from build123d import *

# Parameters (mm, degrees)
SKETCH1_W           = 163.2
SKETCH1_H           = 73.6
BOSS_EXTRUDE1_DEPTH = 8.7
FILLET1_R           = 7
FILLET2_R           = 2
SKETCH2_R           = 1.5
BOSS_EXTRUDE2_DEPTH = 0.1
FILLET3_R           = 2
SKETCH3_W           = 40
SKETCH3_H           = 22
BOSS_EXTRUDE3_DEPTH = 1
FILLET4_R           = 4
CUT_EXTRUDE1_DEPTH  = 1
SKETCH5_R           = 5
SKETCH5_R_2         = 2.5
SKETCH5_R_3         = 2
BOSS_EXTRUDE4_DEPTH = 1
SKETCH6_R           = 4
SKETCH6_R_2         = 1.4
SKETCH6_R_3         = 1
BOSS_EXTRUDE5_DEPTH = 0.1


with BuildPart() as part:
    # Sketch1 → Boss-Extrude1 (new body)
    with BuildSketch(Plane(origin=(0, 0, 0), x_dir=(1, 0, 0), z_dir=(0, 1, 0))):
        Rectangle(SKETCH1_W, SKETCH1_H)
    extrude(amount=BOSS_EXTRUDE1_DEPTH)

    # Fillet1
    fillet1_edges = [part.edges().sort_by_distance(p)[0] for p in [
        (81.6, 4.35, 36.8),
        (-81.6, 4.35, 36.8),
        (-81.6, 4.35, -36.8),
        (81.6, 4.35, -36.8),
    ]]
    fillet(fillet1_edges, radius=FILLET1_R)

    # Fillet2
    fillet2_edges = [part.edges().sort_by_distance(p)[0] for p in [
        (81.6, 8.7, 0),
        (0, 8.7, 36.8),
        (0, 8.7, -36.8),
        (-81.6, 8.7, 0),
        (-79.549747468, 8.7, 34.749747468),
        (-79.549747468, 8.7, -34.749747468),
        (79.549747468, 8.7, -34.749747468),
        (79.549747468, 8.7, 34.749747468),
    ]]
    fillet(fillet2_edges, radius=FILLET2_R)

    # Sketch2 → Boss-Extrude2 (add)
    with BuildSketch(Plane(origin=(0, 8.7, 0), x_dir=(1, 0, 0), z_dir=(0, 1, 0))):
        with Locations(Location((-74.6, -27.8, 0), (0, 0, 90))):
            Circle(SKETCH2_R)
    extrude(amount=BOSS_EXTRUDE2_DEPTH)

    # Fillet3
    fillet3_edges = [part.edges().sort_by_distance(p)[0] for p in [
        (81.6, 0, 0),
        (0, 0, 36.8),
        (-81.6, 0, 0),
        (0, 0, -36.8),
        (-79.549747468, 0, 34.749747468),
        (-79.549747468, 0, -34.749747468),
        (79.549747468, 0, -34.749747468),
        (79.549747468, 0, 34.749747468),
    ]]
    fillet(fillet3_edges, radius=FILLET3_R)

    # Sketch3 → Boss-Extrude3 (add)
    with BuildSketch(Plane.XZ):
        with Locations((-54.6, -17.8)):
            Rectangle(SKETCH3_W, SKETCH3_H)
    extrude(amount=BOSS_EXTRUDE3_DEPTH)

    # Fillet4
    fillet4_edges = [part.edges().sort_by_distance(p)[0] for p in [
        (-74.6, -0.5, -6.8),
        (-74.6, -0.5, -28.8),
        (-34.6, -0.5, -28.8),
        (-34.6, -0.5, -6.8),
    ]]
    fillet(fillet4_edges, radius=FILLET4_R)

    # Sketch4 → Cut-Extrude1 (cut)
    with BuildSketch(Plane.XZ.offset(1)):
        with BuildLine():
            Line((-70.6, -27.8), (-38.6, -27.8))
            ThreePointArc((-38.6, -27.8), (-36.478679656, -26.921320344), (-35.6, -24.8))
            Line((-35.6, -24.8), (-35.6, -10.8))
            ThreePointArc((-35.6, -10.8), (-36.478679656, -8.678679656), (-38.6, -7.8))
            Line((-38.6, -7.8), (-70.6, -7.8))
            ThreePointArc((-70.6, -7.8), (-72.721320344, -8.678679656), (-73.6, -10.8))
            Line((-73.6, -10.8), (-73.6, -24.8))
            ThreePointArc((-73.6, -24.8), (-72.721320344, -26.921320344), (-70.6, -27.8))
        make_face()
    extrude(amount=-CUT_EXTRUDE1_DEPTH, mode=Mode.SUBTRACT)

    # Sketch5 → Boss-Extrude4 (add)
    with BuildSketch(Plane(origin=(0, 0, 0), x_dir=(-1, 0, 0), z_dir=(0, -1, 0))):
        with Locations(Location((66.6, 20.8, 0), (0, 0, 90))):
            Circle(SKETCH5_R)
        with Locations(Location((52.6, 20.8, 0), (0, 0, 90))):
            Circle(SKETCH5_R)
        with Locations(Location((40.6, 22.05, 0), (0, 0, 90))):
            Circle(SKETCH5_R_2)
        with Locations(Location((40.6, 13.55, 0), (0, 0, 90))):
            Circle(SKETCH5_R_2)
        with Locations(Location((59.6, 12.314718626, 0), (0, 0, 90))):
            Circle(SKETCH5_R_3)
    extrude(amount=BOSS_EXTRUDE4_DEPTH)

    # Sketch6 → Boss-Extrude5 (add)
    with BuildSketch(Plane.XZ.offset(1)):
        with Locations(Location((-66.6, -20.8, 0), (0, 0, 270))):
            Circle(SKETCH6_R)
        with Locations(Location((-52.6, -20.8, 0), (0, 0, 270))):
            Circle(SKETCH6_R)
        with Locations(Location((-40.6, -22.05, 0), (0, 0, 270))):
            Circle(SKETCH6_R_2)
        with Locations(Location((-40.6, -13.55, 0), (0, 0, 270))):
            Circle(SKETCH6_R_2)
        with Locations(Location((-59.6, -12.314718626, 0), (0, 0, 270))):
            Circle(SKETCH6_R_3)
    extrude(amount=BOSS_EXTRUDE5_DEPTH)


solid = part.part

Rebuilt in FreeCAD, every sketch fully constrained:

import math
import FreeCAD as App
import Part
import Sketcher

V = App.Vector


def edges_at(feature, points):
    """Names of the edges that pass closest to the given points."""
    edges = feature.Shape.Edges
    near = lambda p: min(range(len(edges)), key=lambda i: edges[i].distToShape(Part.Vertex(*p))[0])
    return sorted({f"Edge{near(p) + 1}" for p in points})


def add_polygon(sketch, points):
    """Adds a closed chain of lines whose ends are joined by coincident constraints."""
    first, n = sketch.GeometryCount, len(points)
    for a, b in zip(points, points[1:] + points[:1]):
        sketch.addGeometry(Part.LineSegment(App.Vector(*a, 0), App.Vector(*b, 0)), False)
    for i in range(n):
        sketch.addConstraint(Sketcher.Constraint("Coincident", first + i, 2, first + (i + 1) % n, 1))

doc = App.newDocument("Part")
params = doc.addObject("Spreadsheet::Sheet", "Params")
for row, (alias, value) in enumerate([
    ("sketch1_width", "163.2 mm"),
    ("sketch1_height", "73.6 mm"),
    ("pad1_length", "8.7 mm"),
    ("fillet_radius", "7 mm"),
    ("fillet2_radius", "2 mm"),
    ("sketch2_diameter", "3 mm"),
    ("pad2_length", "0.1 mm"),
    ("fillet3_radius", "2 mm"),
    ("sketch3_width", "40 mm"),
    ("sketch3_height", "22 mm"),
    ("pad3_length", "1 mm"),
    ("fillet4_radius", "4 mm"),
    ("sketch4_radius", "3 mm"),
    ("sketch4_width", "32 mm"),
    ("sketch4_height", "14 mm"),
    ("pocket1_length", "1 mm"),
    ("sketch5_diameter", "10 mm"),
    ("sketch5_diameter2", "5 mm"),
    ("sketch5_diameter3", "4 mm"),
    ("pad4_length", "1 mm"),
    ("sketch6_diameter", "8 mm"),
    ("sketch6_diameter2", "2 mm"),
    ("sketch6_diameter3", "2.8 mm"),
    ("pad5_length", "0.1 mm"),
], start=1):
    params.set(f"A{row}", alias)
    params.set(f"B{row}", "=" + value)
    params.setAlias(f"B{row}", alias)

body = doc.addObject("PartDesign::Body", "Body")

# Sketch on XZ plane
sketch1 = doc.addObject("Sketcher::SketchObject", "Sketch")
body.addObject(sketch1)
sketch1.AttachmentSupport = (doc.XZ_Plane, [""])
sketch1.MapMode = "FlatFace"
add_polygon(sketch1, [(-81.6, -36.8), (-81.6, 36.8), (81.6, 36.8), (81.6, -36.8)])  # lines 0-3
sketch1.addConstraint(Sketcher.Constraint("Vertical", 0))
sketch1.addConstraint(Sketcher.Constraint("Horizontal", 1))
sketch1.addConstraint(Sketcher.Constraint("Vertical", 2))
sketch1.addConstraint(Sketcher.Constraint("Horizontal", 3))
sketch1.addConstraint(Sketcher.Constraint("Symmetric", 0, 2, 2, 2, -1, 1))
sketch1.addConstraint(Sketcher.Constraint("DistanceX", 1, 1, 1, 2, 163.2))
sketch1.addConstraint(Sketcher.Constraint("DistanceY", 0, 1, 0, 2, 73.6))
sketch1.setExpression("Constraints[9]", "Params.sketch1_width")
sketch1.setExpression("Constraints[10]", "Params.sketch1_height")
pad1 = doc.addObject("PartDesign::Pad", "Pad")
body.addObject(pad1)
pad1.Profile = sketch1
pad1.setExpression("Length", "Params.pad1_length")
pad1.Reversed = True
doc.recompute()

fillet = doc.addObject("PartDesign::Fillet", "Fillet")
body.addObject(fillet)
fillet.Base = (pad1, edges_at(pad1, [
    (81.6, 4.35, 36.8),
    (-81.6, 4.35, 36.8),
    (-81.6, 4.35, -36.8),
    (81.6, 4.35, -36.8),
]))
fillet.setExpression("Radius", "Params.fillet_radius")
doc.recompute()

fillet2 = doc.addObject("PartDesign::Fillet", "Fillet001")
body.addObject(fillet2)
fillet2.Base = (fillet, edges_at(fillet, [
    (81.6, 8.7, 0),
    (0, 8.7, 36.8),
    (0, 8.7, -36.8),
    (-81.6, 8.7, 0),
    (-79.55, 8.7, 34.75),
    (-79.55, 8.7, -34.75),
    (79.55, 8.7, -34.75),
    (79.55, 8.7, 34.75),
]))
fillet2.setExpression("Radius", "Params.fillet2_radius")

# Sketch on XZ plane
sketch2 = doc.addObject("Sketcher::SketchObject", "Sketch001")
body.addObject(sketch2)
sketch2.AttachmentSupport = (doc.XZ_Plane, [""])
sketch2.MapMode = "FlatFace"
sketch2.AttachmentOffset = App.Placement(V(0, 0, -8.7), App.Rotation())
sketch2.addGeometry(Part.Circle(V(-74.6, 27.8, 0), V(0, 0, 1), 1.5), False)
sketch2.addConstraint(Sketcher.Constraint("Diameter", 0, 3.0))
sketch2.addConstraint(Sketcher.Constraint("DistanceX", 0, 3, -1, 1, 74.6))
sketch2.addConstraint(Sketcher.Constraint("DistanceY", -1, 1, 0, 3, 27.8))
sketch2.setExpression("Constraints[0]", "Params.sketch2_diameter")
pad2 = doc.addObject("PartDesign::Pad", "Pad001")
body.addObject(pad2)
pad2.Profile = sketch2
pad2.setExpression("Length", "Params.pad2_length")
pad2.Reversed = True
doc.recompute()

fillet3 = doc.addObject("PartDesign::Fillet", "Fillet002")
body.addObject(fillet3)
fillet3.Base = (pad2, edges_at(pad2, [
    (81.6, 0, 0),
    (0, 0, 36.8),
    (-81.6, 0, 0),
    (0, 0, -36.8),
    (-79.55, 0, 34.75),
    (-79.55, 0, -34.75),
    (79.55, 0, -34.75),
    (79.55, 0, 34.75),
]))
fillet3.setExpression("Radius", "Params.fillet3_radius")

# Sketch on XZ plane
sketch3 = doc.addObject("Sketcher::SketchObject", "Sketch002")
body.addObject(sketch3)
sketch3.AttachmentSupport = (doc.XZ_Plane, [""])
sketch3.MapMode = "FlatFace"
add_polygon(sketch3, [(-74.6, -6.8), (-74.6, -28.8), (-34.6, -28.8), (-34.6, -6.8)])  # lines 0-3
sketch3.addConstraint(Sketcher.Constraint("Vertical", 0))
sketch3.addConstraint(Sketcher.Constraint("Horizontal", 1))
sketch3.addConstraint(Sketcher.Constraint("Vertical", 2))
sketch3.addConstraint(Sketcher.Constraint("Horizontal", 3))
sketch3.addConstraint(Sketcher.Constraint("DistanceX", 1, 1, 1, 2, 40.0))
sketch3.addConstraint(Sketcher.Constraint("DistanceY", 0, 2, 0, 1, 22.0))
sketch3.addConstraint(Sketcher.Constraint("DistanceX", 0, 2, -1, 1, 74.6))
sketch3.addConstraint(Sketcher.Constraint("DistanceY", 0, 2, -1, 1, 28.8))
sketch3.setExpression("Constraints[8]", "Params.sketch3_width")
sketch3.setExpression("Constraints[9]", "Params.sketch3_height")
pad3 = doc.addObject("PartDesign::Pad", "Pad002")
body.addObject(pad3)
pad3.Profile = sketch3
pad3.setExpression("Length", "Params.pad3_length")
doc.recompute()

fillet4 = doc.addObject("PartDesign::Fillet", "Fillet003")
body.addObject(fillet4)
fillet4.Base = (pad3, edges_at(pad3, [
    (-74.6, -0.5, -6.8),
    (-74.6, -0.5, -28.8),
    (-34.6, -0.5, -28.8),
    (-34.6, -0.5, -6.8),
]))
fillet4.setExpression("Radius", "Params.fillet4_radius")

# Sketch on XZ plane
sketch4 = doc.addObject("Sketcher::SketchObject", "Sketch003")
body.addObject(sketch4)
sketch4.AttachmentSupport = (doc.XZ_Plane, [""])
sketch4.MapMode = "FlatFace"
sketch4.AttachmentOffset = App.Placement(V(0, 0, 1), App.Rotation())
sketch4.addGeometry(Part.LineSegment(V(-70.6, -27.8, 0), V(-38.6, -27.8, 0)), False)
sketch4.addGeometry(Part.ArcOfCircle(Part.Circle(V(-38.6, -24.8, 0), V(0, 0, 1), 3), math.radians(-90), math.radians(0)), False)
sketch4.addGeometry(Part.LineSegment(V(-35.6, -24.8, 0), V(-35.6, -10.8, 0)), False)
sketch4.addGeometry(Part.ArcOfCircle(Part.Circle(V(-38.6, -10.8, 0), V(0, 0, 1), 3), math.radians(0), math.radians(90)), False)
sketch4.addGeometry(Part.LineSegment(V(-38.6, -7.8, 0), V(-70.6, -7.8, 0)), False)
sketch4.addGeometry(Part.ArcOfCircle(Part.Circle(V(-70.6, -10.8, 0), V(0, 0, 1), 3), math.radians(90), math.radians(180)), False)
sketch4.addGeometry(Part.LineSegment(V(-73.6, -10.8, 0), V(-73.6, -24.8, 0)), False)
sketch4.addGeometry(Part.ArcOfCircle(Part.Circle(V(-70.6, -24.8, 0), V(0, 0, 1), 3), math.radians(180), math.radians(270)), False)
sketch4.addConstraint(Sketcher.Constraint("Tangent", 0, 2, 1, 1))
sketch4.addConstraint(Sketcher.Constraint("Tangent", 1, 2, 2, 1))
sketch4.addConstraint(Sketcher.Constraint("Tangent", 2, 2, 3, 1))
sketch4.addConstraint(Sketcher.Constraint("Tangent", 3, 2, 4, 1))
sketch4.addConstraint(Sketcher.Constraint("Tangent", 4, 2, 5, 1))
sketch4.addConstraint(Sketcher.Constraint("Tangent", 5, 2, 6, 1))
sketch4.addConstraint(Sketcher.Constraint("Tangent", 6, 2, 7, 1))
sketch4.addConstraint(Sketcher.Constraint("Tangent", 7, 2, 0, 1))
sketch4.addConstraint(Sketcher.Constraint("Horizontal", 0))
sketch4.addConstraint(Sketcher.Constraint("Vertical", 2))
sketch4.addConstraint(Sketcher.Constraint("Horizontal", 4))
sketch4.addConstraint(Sketcher.Constraint("Vertical", 6))
sketch4.addConstraint(Sketcher.Constraint("Equal", 1, 3))
sketch4.addConstraint(Sketcher.Constraint("Equal", 3, 5))
sketch4.addConstraint(Sketcher.Constraint("Equal", 5, 7))
sketch4.addConstraint(Sketcher.Constraint("Radius", 1, 3.0))
sketch4.addConstraint(Sketcher.Constraint("DistanceX", 0, 1, 0, 2, 32.0))
sketch4.addConstraint(Sketcher.Constraint("DistanceY", 2, 1, 2, 2, 14.0))
sketch4.addConstraint(Sketcher.Constraint("DistanceX", 1, 3, -1, 1, 38.6))
sketch4.addConstraint(Sketcher.Constraint("DistanceY", 1, 3, -1, 1, 24.8))
sketch4.setExpression("Constraints[15]", "Params.sketch4_radius")
sketch4.setExpression("Constraints[16]", "Params.sketch4_width")
sketch4.setExpression("Constraints[17]", "Params.sketch4_height")
pocket1 = doc.addObject("PartDesign::Pocket", "Pocket")
body.addObject(pocket1)
pocket1.Profile = sketch4
pocket1.setExpression("Length", "Params.pocket1_length")

# Sketch on XZ plane
sketch5 = doc.addObject("Sketcher::SketchObject", "Sketch004")
body.addObject(sketch5)
sketch5.AttachmentSupport = (doc.XZ_Plane, [""])
sketch5.MapMode = "FlatFace"
sketch5.addGeometry(Part.Circle(V(-66.6, -20.8, 0), V(0, 0, 1), 5), False)
sketch5.addGeometry(Part.Circle(V(-52.6, -20.8, 0), V(0, 0, 1), 5), False)
sketch5.addGeometry(Part.Circle(V(-40.6, -22.05, 0), V(0, 0, 1), 2.5), False)
sketch5.addGeometry(Part.Circle(V(-40.6, -13.55, 0), V(0, 0, 1), 2.5), False)
sketch5.addGeometry(Part.Circle(V(-59.6, -12.314719, 0), V(0, 0, 1), 2), False)
sketch5.addConstraint(Sketcher.Constraint("Equal", 0, 1))
sketch5.addConstraint(Sketcher.Constraint("Equal", 2, 3))
sketch5.addConstraint(Sketcher.Constraint("Horizontal", 0, 3, 1, 3))
sketch5.addConstraint(Sketcher.Constraint("Vertical", 2, 3, 3, 3))
sketch5.addConstraint(Sketcher.Constraint("Diameter", 0, 10.0))
sketch5.addConstraint(Sketcher.Constraint("Diameter", 2, 5.0))
sketch5.addConstraint(Sketcher.Constraint("Diameter", 4, 4.0))
sketch5.addConstraint(Sketcher.Constraint("DistanceX", 0, 3, 1, 3, 14.0))
sketch5.addConstraint(Sketcher.Constraint("DistanceX", 1, 3, 2, 3, 12.0))
sketch5.addConstraint(Sketcher.Constraint("DistanceX", 0, 3, 4, 3, 7.0))
sketch5.addConstraint(Sketcher.Constraint("DistanceX", 0, 3, -1, 1, 66.6))
sketch5.addConstraint(Sketcher.Constraint("DistanceY", 0, 3, -1, 1, 20.8))
sketch5.addConstraint(Sketcher.Constraint("DistanceY", 2, 3, 3, 3, 8.5))
sketch5.addConstraint(Sketcher.Constraint("DistanceY", 2, 3, -1, 1, 22.05))
sketch5.addConstraint(Sketcher.Constraint("DistanceY", 4, 3, -1, 1, 12.314719))
sketch5.setExpression("Constraints[4]", "Params.sketch5_diameter")
sketch5.setExpression("Constraints[5]", "Params.sketch5_diameter2")
sketch5.setExpression("Constraints[6]", "Params.sketch5_diameter3")
pad4 = doc.addObject("PartDesign::Pad", "Pad003")
body.addObject(pad4)
pad4.Profile = sketch5
pad4.setExpression("Length", "Params.pad4_length")

# Sketch on XZ plane
sketch6 = doc.addObject("Sketcher::SketchObject", "Sketch005")
body.addObject(sketch6)
sketch6.AttachmentSupport = (doc.XZ_Plane, [""])
sketch6.MapMode = "FlatFace"
sketch6.AttachmentOffset = App.Placement(V(0, 0, 1), App.Rotation())
sketch6.addGeometry(Part.Circle(V(-66.6, -20.8, 0), V(0, 0, 1), 4), False)
sketch6.addGeometry(Part.Circle(V(-52.6, -20.8, 0), V(0, 0, 1), 4), False)
sketch6.addGeometry(Part.Circle(V(-40.6, -22.05, 0), V(0, 0, 1), 1.4), False)
sketch6.addGeometry(Part.Circle(V(-40.6, -13.55, 0), V(0, 0, 1), 1.4), False)
sketch6.addGeometry(Part.Circle(V(-59.6, -12.314719, 0), V(0, 0, 1), 1), False)
sketch6.addConstraint(Sketcher.Constraint("Equal", 0, 1))
sketch6.addConstraint(Sketcher.Constraint("Equal", 2, 3))
sketch6.addConstraint(Sketcher.Constraint("Horizontal", 0, 3, 1, 3))
sketch6.addConstraint(Sketcher.Constraint("Vertical", 2, 3, 3, 3))
sketch6.addConstraint(Sketcher.Constraint("Diameter", 0, 8.0))
sketch6.addConstraint(Sketcher.Constraint("Diameter", 4, 2.0))
sketch6.addConstraint(Sketcher.Constraint("Diameter", 2, 2.8))
sketch6.addConstraint(Sketcher.Constraint("DistanceX", 0, 3, 1, 3, 14.0))
sketch6.addConstraint(Sketcher.Constraint("DistanceX", 1, 3, 2, 3, 12.0))
sketch6.addConstraint(Sketcher.Constraint("DistanceX", 0, 3, 4, 3, 7.0))
sketch6.addConstraint(Sketcher.Constraint("DistanceX", 0, 3, -1, 1, 66.6))
sketch6.addConstraint(Sketcher.Constraint("DistanceY", 0, 3, -1, 1, 20.8))
sketch6.addConstraint(Sketcher.Constraint("DistanceY", 2, 3, 3, 3, 8.5))
sketch6.addConstraint(Sketcher.Constraint("DistanceY", 2, 3, -1, 1, 22.05))
sketch6.addConstraint(Sketcher.Constraint("DistanceY", 4, 3, -1, 1, 12.314719))
sketch6.setExpression("Constraints[4]", "Params.sketch6_diameter")
sketch6.setExpression("Constraints[5]", "Params.sketch6_diameter2")
sketch6.setExpression("Constraints[6]", "Params.sketch6_diameter3")
pad5 = doc.addObject("PartDesign::Pad", "Pad004")
body.addObject(pad5)
pad5.Profile = sketch6
pad5.setExpression("Length", "Params.pad5_length")

doc.recompute()
